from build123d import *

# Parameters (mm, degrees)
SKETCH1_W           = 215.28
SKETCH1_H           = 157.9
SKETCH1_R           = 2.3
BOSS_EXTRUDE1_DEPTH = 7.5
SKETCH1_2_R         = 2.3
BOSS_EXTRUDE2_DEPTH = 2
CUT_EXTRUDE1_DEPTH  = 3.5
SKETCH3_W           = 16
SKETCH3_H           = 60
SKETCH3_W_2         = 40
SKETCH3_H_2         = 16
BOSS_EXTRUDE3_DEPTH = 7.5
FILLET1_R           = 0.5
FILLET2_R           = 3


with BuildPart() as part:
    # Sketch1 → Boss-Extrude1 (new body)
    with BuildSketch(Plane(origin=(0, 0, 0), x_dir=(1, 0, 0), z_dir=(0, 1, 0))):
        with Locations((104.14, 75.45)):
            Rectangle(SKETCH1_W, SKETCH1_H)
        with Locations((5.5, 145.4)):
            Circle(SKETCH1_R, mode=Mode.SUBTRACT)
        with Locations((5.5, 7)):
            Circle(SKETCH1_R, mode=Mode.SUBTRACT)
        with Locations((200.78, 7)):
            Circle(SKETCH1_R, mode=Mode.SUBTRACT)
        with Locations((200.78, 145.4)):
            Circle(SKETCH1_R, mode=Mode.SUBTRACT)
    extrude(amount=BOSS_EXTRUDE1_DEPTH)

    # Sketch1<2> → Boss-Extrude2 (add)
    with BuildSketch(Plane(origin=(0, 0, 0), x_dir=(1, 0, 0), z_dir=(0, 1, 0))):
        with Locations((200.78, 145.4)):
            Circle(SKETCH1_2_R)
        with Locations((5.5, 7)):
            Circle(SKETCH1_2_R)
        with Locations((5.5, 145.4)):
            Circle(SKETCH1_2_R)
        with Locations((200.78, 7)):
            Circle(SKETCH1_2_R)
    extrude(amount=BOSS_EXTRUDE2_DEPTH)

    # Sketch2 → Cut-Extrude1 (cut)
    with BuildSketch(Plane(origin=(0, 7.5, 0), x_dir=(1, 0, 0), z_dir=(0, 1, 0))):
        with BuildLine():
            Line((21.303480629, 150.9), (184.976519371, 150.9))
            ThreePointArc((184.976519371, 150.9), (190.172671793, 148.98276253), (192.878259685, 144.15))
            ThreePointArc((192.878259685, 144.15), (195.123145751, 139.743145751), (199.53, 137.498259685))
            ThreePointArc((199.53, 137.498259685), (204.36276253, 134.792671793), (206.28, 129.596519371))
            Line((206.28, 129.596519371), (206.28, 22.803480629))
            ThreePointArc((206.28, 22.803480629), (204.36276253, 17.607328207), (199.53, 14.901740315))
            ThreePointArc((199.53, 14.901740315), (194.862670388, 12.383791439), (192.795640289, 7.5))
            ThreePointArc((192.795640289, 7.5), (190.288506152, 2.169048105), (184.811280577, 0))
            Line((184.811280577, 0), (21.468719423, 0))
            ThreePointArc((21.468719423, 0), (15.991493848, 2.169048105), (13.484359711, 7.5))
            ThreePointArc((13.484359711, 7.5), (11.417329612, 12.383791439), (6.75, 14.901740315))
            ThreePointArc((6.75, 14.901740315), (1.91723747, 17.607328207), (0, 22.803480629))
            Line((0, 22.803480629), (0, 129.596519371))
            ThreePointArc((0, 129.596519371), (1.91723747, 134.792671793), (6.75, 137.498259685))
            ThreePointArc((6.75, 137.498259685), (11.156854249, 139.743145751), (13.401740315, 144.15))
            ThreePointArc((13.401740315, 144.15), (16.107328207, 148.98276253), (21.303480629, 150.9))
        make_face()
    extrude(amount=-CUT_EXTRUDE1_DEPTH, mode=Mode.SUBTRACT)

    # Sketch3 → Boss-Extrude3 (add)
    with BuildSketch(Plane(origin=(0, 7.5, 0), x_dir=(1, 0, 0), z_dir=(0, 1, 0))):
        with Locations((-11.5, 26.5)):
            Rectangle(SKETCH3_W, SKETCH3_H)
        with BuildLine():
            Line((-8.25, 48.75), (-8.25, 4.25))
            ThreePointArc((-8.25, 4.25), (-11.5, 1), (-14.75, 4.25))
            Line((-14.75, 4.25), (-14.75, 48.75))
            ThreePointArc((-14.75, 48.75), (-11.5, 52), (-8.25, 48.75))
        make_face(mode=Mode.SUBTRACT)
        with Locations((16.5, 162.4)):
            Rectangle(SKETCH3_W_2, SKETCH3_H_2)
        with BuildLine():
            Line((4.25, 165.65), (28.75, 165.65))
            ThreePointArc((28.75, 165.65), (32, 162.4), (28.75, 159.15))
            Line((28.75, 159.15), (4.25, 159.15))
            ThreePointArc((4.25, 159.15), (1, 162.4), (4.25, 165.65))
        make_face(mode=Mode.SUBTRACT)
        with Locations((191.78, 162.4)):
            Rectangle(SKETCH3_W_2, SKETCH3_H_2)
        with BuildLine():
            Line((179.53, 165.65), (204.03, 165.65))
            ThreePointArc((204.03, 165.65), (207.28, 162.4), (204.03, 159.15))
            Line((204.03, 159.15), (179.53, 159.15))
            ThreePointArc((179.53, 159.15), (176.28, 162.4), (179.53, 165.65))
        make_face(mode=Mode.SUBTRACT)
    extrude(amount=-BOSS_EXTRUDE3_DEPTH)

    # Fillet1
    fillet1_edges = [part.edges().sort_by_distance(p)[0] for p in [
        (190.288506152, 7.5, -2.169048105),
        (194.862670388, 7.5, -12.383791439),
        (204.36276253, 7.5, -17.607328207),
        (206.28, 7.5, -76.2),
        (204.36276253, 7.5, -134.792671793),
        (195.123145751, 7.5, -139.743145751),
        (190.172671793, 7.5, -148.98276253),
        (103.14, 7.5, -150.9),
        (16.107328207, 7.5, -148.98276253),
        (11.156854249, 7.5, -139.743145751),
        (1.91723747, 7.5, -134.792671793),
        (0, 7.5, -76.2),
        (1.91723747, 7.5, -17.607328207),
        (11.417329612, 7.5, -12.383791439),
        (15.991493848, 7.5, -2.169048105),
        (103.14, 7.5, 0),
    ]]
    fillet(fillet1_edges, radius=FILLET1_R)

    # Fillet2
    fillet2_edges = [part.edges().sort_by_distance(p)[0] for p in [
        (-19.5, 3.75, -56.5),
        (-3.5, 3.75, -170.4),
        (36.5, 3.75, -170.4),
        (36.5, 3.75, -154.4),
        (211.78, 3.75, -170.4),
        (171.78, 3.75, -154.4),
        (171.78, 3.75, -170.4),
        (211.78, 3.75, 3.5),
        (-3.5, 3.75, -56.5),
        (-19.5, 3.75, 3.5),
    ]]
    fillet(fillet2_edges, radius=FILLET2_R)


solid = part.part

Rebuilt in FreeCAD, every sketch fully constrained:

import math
import FreeCAD as App
import Part
import Sketcher
from FreeCAD import Vector


def edges_at(feature, points):
    """Names of the edges that pass closest to the given points."""
    edges = feature.Shape.Edges
    near = lambda p: min(range(len(edges)), key=lambda i: edges[i].distToShape(Part.Vertex(*p))[0])
    return sorted({f"Edge{near(p) + 1}" for p in points})


def add_polygon(sketch, points):
    """Adds a closed chain of lines whose ends are joined by coincident constraints."""
    first, n = sketch.GeometryCount, len(points)
    for a, b in zip(points, points[1:] + points[:1]):
        sketch.addGeometry(Part.LineSegment(App.Vector(*a, 0), App.Vector(*b, 0)), False)
    for i in range(n):
        sketch.addConstraint(Sketcher.Constraint("Coincident", first + i, 2, first + (i + 1) % n, 1))

doc = App.newDocument("Part")
body = doc.addObject("PartDesign::Body", "Body")

sketch1 = body.newObject("Sketcher::SketchObject", "Sketch")
sketch1.AttachmentSupport = (doc.getObject("XZ_Plane"), [""])
sketch1.MapMode = "FlatFace"
add_polygon(sketch1, [(-3.5, -154.4), (-3.5, 3.5), (211.8, 3.5), (211.8, -154.4)])
sketch1.addGeometry(Part.Circle(Vector(5.5, -7, 0), Vector(0, 0, 1), 2.3), False)
sketch1.addGeometry(Part.Circle(Vector(200.8, -7, 0), Vector(0, 0, 1), 2.3), False)
sketch1.addGeometry(Part.Circle(Vector(5.5, -145.4, 0), Vector(0, 0, 1), 2.3), False)
sketch1.addGeometry(Part.Circle(Vector(200.8, -145.4, 0), Vector(0, 0, 1), 2.3), False)
sketch1.addConstraint([
    Sketcher.Constraint("Vertical", 0),
    Sketcher.Constraint("Horizontal", 1),
    Sketcher.Constraint("Vertical", 2),
    Sketcher.Constraint("Horizontal", 3),
    Sketcher.Constraint("Equal", 4, 5),
    Sketcher.Constraint("Equal", 5, 6),
    Sketcher.Constraint("Equal", 6, 7),
    Sketcher.Constraint("Horizontal", 4, 3, 5, 3),
    Sketcher.Constraint("Horizontal", 6, 3, 7, 3),
    Sketcher.Constraint("Vertical", 4, 3, 6, 3),
    Sketcher.Constraint("Vertical", 5, 3, 7, 3),
    Sketcher.Constraint("Diameter", 4, 4.6),
    Sketcher.Constraint("DistanceY", 0, 1, 0, 2, 157.9),
    Sketcher.Constraint("DistanceY", 4, 3, -1, 1, 7.0),
    Sketcher.Constraint("DistanceX", 0, 2, 4, 3, 9.0),
    Sketcher.Constraint("DistanceX", 5, 3, 1, 2, 11.0),
    Sketcher.Constraint("DistanceY", 2, 2, 7, 3, 9.0),
    Sketcher.Constraint("DistanceX", 1, 1, 1, 2, 215.28),
    Sketcher.Constraint("DistanceX", -1, 1, 4, 3, 5.5),
    Sketcher.Constraint("DistanceY", 6, 3, -1, 1, 145.4),
])
pad1 = body.newObject("PartDesign::Pad", "Pad")
pad1.Profile = sketch1
pad1.Length = 7.5
pad1.Reversed = True

sketch2 = body.newObject("Sketcher::SketchObject", "Sketch001")
sketch2.AttachmentSupport = (doc.getObject("XZ_Plane"), [""])
sketch2.MapMode = "FlatFace"
sketch2.addGeometry([
    Part.Circle(Vector(200.8, -145.4, 0), Vector(0, 0, 1), 2.3),
    Part.Circle(Vector(5.5, -7, 0), Vector(0, 0, 1), 2.3),
    Part.Circle(Vector(5.5, -145.4, 0), Vector(0, 0, 1), 2.3),
    Part.Circle(Vector(200.8, -7, 0), Vector(0, 0, 1), 2.3),
], False)
sketch2.addConstraint([
    Sketcher.Constraint("Equal", 0, 1),
    Sketcher.Constraint("Equal", 1, 2),
    Sketcher.Constraint("Equal", 2, 3),
    Sketcher.Constraint("Horizontal", 0, 3, 2, 3),
    Sketcher.Constraint("Horizontal", 1, 3, 3, 3),
    Sketcher.Constraint("Vertical", 1, 3, 2, 3),
    Sketcher.Constraint("Vertical", 0, 3, 3, 3),
    Sketcher.Constraint("Diameter", 0, 4.6),
    Sketcher.Constraint("DistanceY", 1, 3, -1, 1, 7.0),
    Sketcher.Constraint("DistanceY", 0, 3, -1, 1, 145.4),
    Sketcher.Constraint("DistanceX", -1, 1, 1, 3, 5.5),
    Sketcher.Constraint("DistanceX", -1, 1, 0, 3, 200.78),
])
pad2 = body.newObject("PartDesign::Pad", "Pad001")
pad2.Profile = sketch2
pad2.Length = 2
pad2.Reversed = True

sketch3 = body.newObject("Sketcher::SketchObject", "Sketch002")
sketch3.AttachmentSupport = (doc.getObject("XZ_Plane"), [""])
sketch3.MapMode = "FlatFace"
sketch3.AttachmentOffset = App.Placement(Vector(0, 0, -7.5), App.Rotation())
sketch3.addGeometry([
    Part.LineSegment(Vector(185, -151, 0), Vector(21, -151, 0)),
    Part.ArcOfCircle(Part.Circle(Vector(21, -143, 0), Vector(0, 0, 1), 8), math.radians(-171), math.radians(-90)),
    Part.ArcOfCircle(Part.Circle(Vector(5, -145, 0), Vector(0, 0, 1), 8), math.radians(9), math.radians(81)),
    Part.ArcOfCircle(Part.Circle(Vector(8, -130, 0), Vector(0, 0, 1), 8), math.radians(-180), math.radians(-99)),
    Part.LineSegment(Vector(0, -130, 0), Vector(0, -23, 0)),
    Part.ArcOfCircle(Part.Circle(Vector(8, -23, 0), Vector(0, 0, 1), 8), math.radians(99), math.radians(180)),
    Part.ArcOfCircle(Part.Circle(Vector(5, -7, 0), Vector(0, 0, 1), 8), math.radians(-81), math.radians(-4)),
    Part.ArcOfCircle(Part.Circle(Vector(21, -8, 0), Vector(0, 0, 1), 8), math.radians(90), math.radians(176)),
    Part.LineSegment(Vector(21, 0, 0), Vector(185, 0, 0)),
    Part.ArcOfCircle(Part.Circle(Vector(185, -8, 0), Vector(0, 0, 1), 8), math.radians(4), math.radians(90)),
    Part.ArcOfCircle(Part.Circle(Vector(201, -7, 0), Vector(0, 0, 1), 8), math.radians(-176), math.radians(-99)),
    Part.ArcOfCircle(Part.Circle(Vector(198, -23, 0), Vector(0, 0, 1), 8), math.radians(0), math.radians(81)),
    Part.LineSegment(Vector(206, -23, 0), Vector(206, -130, 0)),
    Part.ArcOfCircle(Part.Circle(Vector(198, -130, 0), Vector(0, 0, 1), 8), math.radians(-81), math.radians(0)),
    Part.ArcOfCircle(Part.Circle(Vector(201, -145, 0), Vector(0, 0, 1), 8), math.radians(99), math.radians(171)),
    Part.ArcOfCircle(Part.Circle(Vector(185, -143, 0), Vector(0, 0, 1), 8), math.radians(-90), math.radians(-9)),
], False)
sketch3.addConstraint([
    Sketcher.Constraint("Tangent", 0, 2, 1, 2),
    Sketcher.Constraint("Tangent", 1, 1, 2, 1),
    Sketcher.Constraint("Tangent", 2, 2, 3, 2),
    Sketcher.Constraint("Tangent", 3, 1, 4, 1),
    Sketcher.Constraint("Tangent", 4, 2, 5, 2),
    Sketcher.Constraint("Tangent", 5, 1, 6, 1),
    Sketcher.Constraint("Tangent", 6, 2, 7, 2),
    Sketcher.Constraint("Tangent", 7, 1, 8, 1),
    Sketcher.Constraint("Tangent", 8, 2, 9, 2),
    Sketcher.Constraint("Tangent", 9, 1, 10, 1),
    Sketcher.Constraint("Tangent", 10, 2, 11, 2),
    Sketcher.Constraint("Tangent", 11, 1, 12, 1),
    Sketcher.Constraint("Tangent", 12, 2, 13, 2),
    Sketcher.Constraint("Tangent", 13, 1, 14, 1),
    Sketcher.Constraint("Tangent", 14, 2, 15, 2),
    Sketcher.Constraint("Tangent", 15, 1, 0, 1),
    Sketcher.Constraint("Horizontal", 0),
    Sketcher.Constraint("Vertical", 4),
    Sketcher.Constraint("Horizontal", 8),
    Sketcher.Constraint("Vertical", 12),
    Sketcher.Constraint("Equal", 1, 2),
    Sketcher.Constraint("Equal", 2, 3),
    Sketcher.Constraint("Equal", 3, 5),
    Sketcher.Constraint("Equal", 5, 6),
    Sketcher.Constraint("Equal", 6, 7),
    Sketcher.Constraint("Equal", 7, 9),
    Sketcher.Constraint("Equal", 9, 10),
    Sketcher.Constraint("Equal", 10, 11),
    Sketcher.Constraint("Equal", 11, 13),
    Sketcher.Constraint("Equal", 13, 14),
    Sketcher.Constraint("Equal", 14, 15),
    Sketcher.Constraint("PointOnObject", 3, 1, -2),
    Sketcher.Constraint("PointOnObject", 7, 1, -1),
    Sketcher.Constraint("Horizontal", 6, 3, 10, 3),
    Sketcher.Constraint("Horizontal", 5, 3, 11, 3),
    Sketcher.Constraint("Horizontal", 3, 3, 13, 3),
    Sketcher.Constraint("Horizontal", 2, 3, 14, 3),
    Sketcher.Constraint("Vertical", 2, 3, 6, 3),
    Sketcher.Constraint("Radius", 1, 8.0),
    Sketcher.Constraint("DistanceY", 6, 3, -1, 1, 7.0),
    Sketcher.Constraint("DistanceY", 1, 3, -1, 1, 142.9),
    Sketcher.Constraint("DistanceX", -1, 1, 2, 3, 5.5),
    Sketcher.Constraint("DistanceY", 2, 3, -1, 1, 145.4),
    Sketcher.Constraint("DistanceX", -1, 1, 10, 3, 200.78),
])
pocket1 = body.newObject("PartDesign::Pocket", "Pocket")
pocket1.Profile = sketch3
pocket1.Length = 3.5
pocket1.Reversed = True

sketch4 = body.newObject("Sketcher::SketchObject", "Sketch003")
sketch4.AttachmentSupport = (doc.getObject("XZ_Plane"), [""])
sketch4.MapMode = "FlatFace"
sketch4.AttachmentOffset = App.Placement(Vector(0, 0, -7.5), App.Rotation())
add_polygon(sketch4, [(-19.5, -56.5), (-19.5, 3.5), (-3.5, 3.5), (-3.5, -56.5)])
sketch4.addGeometry(Part.ArcOfCircle(Part.Circle(Vector(-11.5, -48.8, 0), Vector(0, 0, 1), 3.2), math.radians(180), math.radians(360)), False)
sketch4.addGeometry(Part.LineSegment(Vector(-8.2, -48.8, 0), Vector(-8.2, -4.2, 0)), False)
sketch4.addGeometry(Part.ArcOfCircle(Part.Circle(Vector(-11.5, -4.2, 0), Vector(0, 0, 1), 3.2), math.radians(0), math.radians(180)), False)
sketch4.addGeometry(Part.LineSegment(Vector(-14.8, -4.2, 0), Vector(-14.8, -48.8, 0)), False)
add_polygon(sketch4, [(-3.5, -170.4), (-3.5, -154.4), (36.5, -154.4), (36.5, -170.4)])
sketch4.addGeometry(Part.ArcOfCircle(Part.Circle(Vector(4.2, -162.4, 0), Vector(0, 0, 1), 3.2), math.radians(90), math.radians(270)), False)
sketch4.addGeometry(Part.LineSegment(Vector(4.2, -165.7, 0), Vector(28.8, -165.7, 0)), False)
sketch4.addGeometry(Part.ArcOfCircle(Part.Circle(Vector(28.8, -162.4, 0), Vector(0, 0, 1), 3.2), math.radians(-90), math.radians(90)), False)
sketch4.addGeometry(Part.LineSegment(Vector(28.8, -159.2, 0), Vector(4.2, -159.2, 0)), False)
add_polygon(sketch4, [(171.8, -170.4), (171.8, -154.4), (211.8, -154.4), (211.8, -170.4)])
sketch4.addGeometry(Part.ArcOfCircle(Part.Circle(Vector(179.5, -162.4, 0), Vector(0, 0, 1), 3.2), math.radians(90), math.radians(270)), False)
sketch4.addGeometry(Part.LineSegment(Vector(179.5, -165.7, 0), Vector(204, -165.7, 0)), False)
sketch4.addGeometry(Part.ArcOfCircle(Part.Circle(Vector(204, -162.4, 0), Vector(0, 0, 1), 3.2), math.radians(-90), math.radians(90)), False)
sketch4.addGeometry(Part.LineSegment(Vector(204, -159.2, 0), Vector(179.5, -159.2, 0)), False)
sketch4.addConstraint([
    Sketcher.Constraint("Tangent", 4, 2, 5, 1),
    Sketcher.Constraint("Tangent", 5, 2, 6, 1),
    Sketcher.Constraint("Tangent", 6, 2, 7, 1),
    Sketcher.Constraint("Tangent", 7, 2, 4, 1),
    Sketcher.Constraint("Tangent", 12, 2, 13, 1),
    Sketcher.Constraint("Tangent", 13, 2, 14, 1),
    Sketcher.Constraint("Tangent", 14, 2, 15, 1),
    Sketcher.Constraint("Tangent", 15, 2, 12, 1),
    Sketcher.Constraint("Tangent", 20, 2, 21, 1),
    Sketcher.Constraint("Tangent", 21, 2, 22, 1),
    Sketcher.Constraint("Tangent", 22, 2, 23, 1),
    Sketcher.Constraint("Tangent", 23, 2, 20, 1),
    Sketcher.Constraint("Vertical", 0),
    Sketcher.Constraint("Horizontal", 1),
    Sketcher.Constraint("Vertical", 2),
    Sketcher.Constraint("Horizontal", 3),
    Sketcher.Constraint("Vertical", 5),
    Sketcher.Constraint("Vertical", 7),
    Sketcher.Constraint("Vertical", 8),
    Sketcher.Constraint("Horizontal", 9),
    Sketcher.Constraint("Vertical", 10),
    Sketcher.Constraint("Horizontal", 11),
    Sketcher.Constraint("Horizontal", 13),
    Sketcher.Constraint("Horizontal", 15),
    Sketcher.Constraint("Vertical", 16),
    Sketcher.Constraint("Horizontal", 17),
    Sketcher.Constraint("Vertical", 18),
    Sketcher.Constraint("Horizontal", 19),
    Sketcher.Constraint("Horizontal", 21),
    Sketcher.Constraint("Horizontal", 23),
    Sketcher.Constraint("Equal", 6, 12),
    Sketcher.Constraint("Equal", 14, 20),
    Sketcher.Constraint("Horizontal", 14, 3, 20, 3),
    Sketcher.Constraint("Horizontal", 9, 2, 16, 2),
    Sketcher.Constraint("Horizontal", 11, 2, 18, 2),
    Sketcher.Constraint("Vertical", 2, 2, 8, 2),
    Sketcher.Constraint("Equal", 11, 17),
    Sketcher.Constraint("Equal", 15, 21),
    Sketcher.Constraint("Equal", 3, 8),
    Sketcher.Constraint("DistanceX", 1, 1, 1, 2, 16.0),
    Sketcher.Constraint("DistanceX", 9, 1, 9, 2, 40.0),
    Sketcher.Constraint("DistanceY", 0, 1, 0, 2, 60.0),
    Sketcher.Constraint("Radius", 4, 3.25),
    Sketcher.Constraint("DistanceX", 13, 1, 13, 2, 24.5),
    Sketcher.Constraint("DistanceY", 5, 1, 5, 2, 44.5),
    Sketcher.Constraint("DistanceX", 0, 2, 6, 3, 8.0),
    Sketcher.Constraint("DistanceY", 12, 3, 8, 2, 8.0),
    Sketcher.Constraint("DistanceX", 4, 3, -1, 1, 11.5),
    Sketcher.Constraint("DistanceY", 12, 3, -1, 1, 162.4),
    Sketcher.Constraint("DistanceY", -1, 1, 0, 2, 3.5),
    Sketcher.Constraint("DistanceY", 4, 3, -1, 1, 48.75),
    Sketcher.Constraint("DistanceX", -1, 1, 12, 3, 4.25),
    Sketcher.Constraint("DistanceX", -1, 1, 20, 3, 179.53),
    Sketcher.Constraint("DistanceX", -1, 1, 16, 2, 171.78),
])
pad3 = body.newObject("PartDesign::Pad", "Pad002")
pad3.Profile = sketch4
pad3.Length = 7.5
doc.recompute()

fillet = body.newObject("PartDesign::Fillet", "Fillet")
fillet.Base = (pad3, edges_at(pad3, [
    (190.289, 7.5, -2.169),
    (194.863, 7.5, -12.384),
    (204.363, 7.5, -17.607),
    (206.28, 7.5, -76.2),
    (204.363, 7.5, -134.793),
    (195.123, 7.5, -139.743),
    (190.173, 7.5, -148.983),
    (103.14, 7.5, -150.9),
    (16.107, 7.5, -148.983),
    (11.157, 7.5, -139.743),
    (1.917, 7.5, -134.793),
    (0, 7.5, -76.2),
    (1.917, 7.5, -17.607),
    (11.417, 7.5, -12.384),
    (15.991, 7.5, -2.169),
    (103.14, 7.5, 0),
]))
fillet.Radius = 0.5
doc.recompute()

fillet2 = body.newObject("PartDesign::Fillet", "Fillet001")
fillet2.Base = (fillet, edges_at(fillet, [
    (-19.5, 3.75, -56.5),
    (-3.5, 3.75, -170.4),
    (36.5, 3.75, -170.4),
    (36.5, 3.75, -154.4),
    (211.78, 3.75, -170.4),
    (171.78, 3.75, -154.4),
    (171.78, 3.75, -170.4),
    (211.78, 3.75, 3.5),
    (-3.5, 3.75, -56.5),
    (-19.5, 3.75, 3.5),
]))
fillet2.Radius = 3

doc.recompute()
